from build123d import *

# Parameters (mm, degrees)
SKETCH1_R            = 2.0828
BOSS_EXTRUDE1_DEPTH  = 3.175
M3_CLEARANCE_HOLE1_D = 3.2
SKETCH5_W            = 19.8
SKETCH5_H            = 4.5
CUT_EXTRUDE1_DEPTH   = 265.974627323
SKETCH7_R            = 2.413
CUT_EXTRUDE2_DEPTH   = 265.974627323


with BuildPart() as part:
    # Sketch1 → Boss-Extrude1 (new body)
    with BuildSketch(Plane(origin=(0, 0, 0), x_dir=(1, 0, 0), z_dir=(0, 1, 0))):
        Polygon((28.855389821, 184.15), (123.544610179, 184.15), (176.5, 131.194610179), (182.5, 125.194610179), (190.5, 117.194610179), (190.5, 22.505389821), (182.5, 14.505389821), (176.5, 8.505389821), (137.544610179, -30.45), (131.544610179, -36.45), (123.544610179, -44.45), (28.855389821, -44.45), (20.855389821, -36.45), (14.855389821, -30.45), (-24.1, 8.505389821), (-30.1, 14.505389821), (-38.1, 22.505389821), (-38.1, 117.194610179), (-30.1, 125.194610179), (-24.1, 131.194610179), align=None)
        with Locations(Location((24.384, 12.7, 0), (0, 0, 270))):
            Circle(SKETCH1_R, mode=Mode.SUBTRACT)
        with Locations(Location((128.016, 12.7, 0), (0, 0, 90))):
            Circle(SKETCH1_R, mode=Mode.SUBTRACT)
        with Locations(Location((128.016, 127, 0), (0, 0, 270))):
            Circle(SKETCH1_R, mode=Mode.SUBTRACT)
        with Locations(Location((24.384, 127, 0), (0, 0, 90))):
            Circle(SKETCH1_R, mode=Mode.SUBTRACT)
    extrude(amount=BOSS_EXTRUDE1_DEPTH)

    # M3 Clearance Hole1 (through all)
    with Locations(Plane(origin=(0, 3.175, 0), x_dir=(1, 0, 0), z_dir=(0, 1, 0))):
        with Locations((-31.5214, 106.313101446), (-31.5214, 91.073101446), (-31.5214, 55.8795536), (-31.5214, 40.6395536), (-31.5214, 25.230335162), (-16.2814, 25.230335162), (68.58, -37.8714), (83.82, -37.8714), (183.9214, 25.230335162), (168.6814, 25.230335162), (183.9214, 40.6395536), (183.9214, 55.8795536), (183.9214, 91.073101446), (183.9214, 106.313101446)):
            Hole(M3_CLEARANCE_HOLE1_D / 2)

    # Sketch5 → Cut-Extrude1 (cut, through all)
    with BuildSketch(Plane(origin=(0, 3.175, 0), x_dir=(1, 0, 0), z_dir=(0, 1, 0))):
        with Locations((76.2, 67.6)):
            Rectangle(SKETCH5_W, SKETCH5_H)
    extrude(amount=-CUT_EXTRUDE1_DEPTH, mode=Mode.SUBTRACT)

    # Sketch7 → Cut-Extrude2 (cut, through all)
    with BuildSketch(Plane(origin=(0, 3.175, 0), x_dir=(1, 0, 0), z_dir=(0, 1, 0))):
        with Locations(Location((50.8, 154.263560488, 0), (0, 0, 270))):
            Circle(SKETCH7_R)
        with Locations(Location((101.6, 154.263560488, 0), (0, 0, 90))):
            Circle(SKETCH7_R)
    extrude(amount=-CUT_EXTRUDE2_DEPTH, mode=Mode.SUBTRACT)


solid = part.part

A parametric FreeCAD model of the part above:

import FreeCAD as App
import Part
import Sketcher

doc = App.newDocument("Part")
body = doc.addObject("PartDesign::Body", "Body")

sketch1 = body.newObject("Sketcher::SketchObject", "Sketch")
sketch1.AttachmentSupport = (doc.getObject("XZ_Plane"), [""])
sketch1.MapMode = "FlatFace"
sketch1.addGeometry([
    Part.LineSegment(App.Vector(123.54461, -184.15, 0), App.Vector(28.85539, -184.15, 0)),
    Part.LineSegment(App.Vector(28.85539, -184.15, 0), App.Vector(-38.1, -117.19461, 0)),
    Part.LineSegment(App.Vector(-38.1, -117.19461, 0), App.Vector(-38.1, -22.50539, 0)),
    Part.LineSegment(App.Vector(-38.1, -22.50539, 0), App.Vector(28.85539, 44.45, 0)),
    Part.LineSegment(App.Vector(28.85539, 44.45, 0), App.Vector(123.54461, 44.45, 0)),
    Part.LineSegment(App.Vector(123.54461, 44.45, 0), App.Vector(190.5, -22.50539, 0)),
    Part.LineSegment(App.Vector(190.5, -22.50539, 0), App.Vector(190.5, -117.19461, 0)),
    Part.LineSegment(App.Vector(190.5, -117.19461, 0), App.Vector(123.54461, -184.15, 0)),
    Part.Circle(App.Vector(128.016, -12.7, 0), App.Vector(0, 0, 1), 2.0828),
    Part.Circle(App.Vector(24.384, -12.7, 0), App.Vector(0, 0, 1), 2.0828),
    Part.Circle(App.Vector(128.016, -127, 0), App.Vector(0, 0, 1), 2.0828),
    Part.Circle(App.Vector(24.384, -127, 0), App.Vector(0, 0, 1), 2.0828),
], False)
sketch1.addConstraint([
    Sketcher.Constraint("Coincident", 0, 2, 1, 1),
    Sketcher.Constraint("Coincident", 1, 2, 2, 1),
    Sketcher.Constraint("Coincident", 2, 2, 3, 1),
    Sketcher.Constraint("Coincident", 3, 2, 4, 1),
    Sketcher.Constraint("Coincident", 4, 2, 5, 1),
    Sketcher.Constraint("Coincident", 5, 2, 6, 1),
    Sketcher.Constraint("Coincident", 6, 2, 7, 1),
    Sketcher.Constraint("Coincident", 7, 2, 0, 1),
    Sketcher.Constraint("Horizontal", 0),
    Sketcher.Constraint("Vertical", 2),
    Sketcher.Constraint("Horizontal", 4),
    Sketcher.Constraint("Vertical", 6),
    Sketcher.Constraint("Equal", 8, 9),
    Sketcher.Constraint("Equal", 9, 10),
    Sketcher.Constraint("Equal", 10, 11),
    Sketcher.Constraint("Perpendicular", 1, 3),
    Sketcher.Constraint("Perpendicular", 3, 5),
    Sketcher.Constraint("Perpendicular", 5, 7),
    Sketcher.Constraint("Horizontal", 8, 3, 9, 3),
    Sketcher.Constraint("Horizontal", 10, 3, 11, 3),
    Sketcher.Constraint("Horizontal", 2, 2, 5, 2),
    Sketcher.Constraint("Horizontal", 1, 2, 6, 2),
    Sketcher.Constraint("Vertical", 8, 3, 10, 3),
    Sketcher.Constraint("Vertical", 9, 3, 11, 3),
    Sketcher.Constraint("Vertical", 0, 2, 3, 2),
    Sketcher.Constraint("Vertical", 4, 2, 7, 2),
    Sketcher.Constraint("Equal", 4, 2),
    Sketcher.Constraint("DistanceY", 10, 3, -1, 1, 127.0),
    Sketcher.Constraint("Diameter", 8, 4.1656),
    Sketcher.Constraint("DistanceY", 8, 3, -1, 1, 12.7),
    Sketcher.Constraint("DistanceX", 1, 2, -1, 1, 38.1),
    Sketcher.Constraint("DistanceX", -1, 1, 5, 2, 190.5),
    Sketcher.Constraint("DistanceY", 0, 2, -1, 1, 184.15),
    Sketcher.Constraint("DistanceX", -1, 1, 8, 3, 128.016),
    Sketcher.Constraint("DistanceX", -1, 1, 9, 3, 24.384),
    Sketcher.Constraint("DistanceX", 0, 2, 0, 1, 94.68922),
])
pad1 = body.newObject("PartDesign::Pad", "Pad")
pad1.Profile = sketch1
pad1.Length = 3.175
pad1.Reversed = True

sketch2 = body.newObject("Sketcher::SketchObject", "Sketch001")
sketch2.AttachmentSupport = (doc.getObject("XZ_Plane"), [""])
sketch2.MapMode = "FlatFace"
sketch2.AttachmentOffset = App.Placement(App.Vector(0, 0, -3.175), App.Rotation())
sketch2.addGeometry([
    Part.Circle(App.Vector(-31.5214, -106.313101, 0), App.Vector(0, 0, 1), 1.6),
    Part.Circle(App.Vector(-31.5214, -91.073101, 0), App.Vector(0, 0, 1), 1.6),
    Part.Circle(App.Vector(-31.5214, -55.879554, 0), App.Vector(0, 0, 1), 1.6),
    Part.Circle(App.Vector(-31.5214, -40.639554, 0), App.Vector(0, 0, 1), 1.6),
    Part.Circle(App.Vector(-31.5214, -25.230335, 0), App.Vector(0, 0, 1), 1.6),
    Part.Circle(App.Vector(-16.2814, -25.230335, 0), App.Vector(0, 0, 1), 1.6),
    Part.Circle(App.Vector(68.58, 37.8714, 0), App.Vector(0, 0, 1), 1.6),
    Part.Circle(App.Vector(83.82, 37.8714, 0), App.Vector(0, 0, 1), 1.6),
    Part.Circle(App.Vector(183.9214, -25.230335, 0), App.Vector(0, 0, 1), 1.6),
    Part.Circle(App.Vector(168.6814, -25.230335, 0), App.Vector(0, 0, 1), 1.6),
    Part.Circle(App.Vector(183.9214, -40.639554, 0), App.Vector(0, 0, 1), 1.6),
    Part.Circle(App.Vector(183.9214, -55.879554, 0), App.Vector(0, 0, 1), 1.6),
    Part.Circle(App.Vector(183.9214, -91.073101, 0), App.Vector(0, 0, 1), 1.6),
    Part.Circle(App.Vector(183.9214, -106.313101, 0), App.Vector(0, 0, 1), 1.6),
], False)
sketch2.addConstraint([
    Sketcher.Constraint("Equal", 0, 1),
    Sketcher.Constraint("Equal", 1, 2),
    Sketcher.Constraint("Equal", 2, 3),
    Sketcher.Constraint("Equal", 3, 4),
    Sketcher.Constraint("Equal", 4, 5),
    Sketcher.Constraint("Equal", 5, 6),
    Sketcher.Constraint("Equal", 6, 7),
    Sketcher.Constraint("Equal", 7, 8),
    Sketcher.Constraint("Equal", 8, 9),
    Sketcher.Constraint("Equal", 9, 10),
    Sketcher.Constraint("Equal", 10, 11),
    Sketcher.Constraint("Equal", 11, 12),
    Sketcher.Constraint("Equal", 12, 13),
    Sketcher.Constraint("Horizontal", 4, 3, 5, 3),
    Sketcher.Constraint("Horizontal", 6, 3, 7, 3),
    Sketcher.Constraint("Horizontal", 5, 3, 8, 3),
    Sketcher.Constraint("Horizontal", 8, 3, 9, 3),
    Sketcher.Constraint("Horizontal", 3, 3, 10, 3),
    Sketcher.Constraint("Horizontal", 2, 3, 11, 3),
    Sketcher.Constraint("Horizontal", 1, 3, 12, 3),
    Sketcher.Constraint("Horizontal", 0, 3, 13, 3),
    Sketcher.Constraint("Vertical", 0, 3, 1, 3),
    Sketcher.Constraint("Vertical", 1, 3, 2, 3),
    Sketcher.Constraint("Vertical", 2, 3, 3, 3),
    Sketcher.Constraint("Vertical", 3, 3, 4, 3),
    Sketcher.Constraint("Vertical", 8, 3, 10, 3),
    Sketcher.Constraint("Vertical", 10, 3, 11, 3),
    Sketcher.Constraint("Vertical", 11, 3, 12, 3),
    Sketcher.Constraint("Vertical", 12, 3, 13, 3),
    Sketcher.Constraint("Diameter", 0, 3.2),
    Sketcher.Constraint("DistanceX", -1, 1, 6, 3, 68.58),
    Sketcher.Constraint("DistanceX", -1, 1, 7, 3, 83.82),
    Sketcher.Constraint("DistanceY", 0, 3, 1, 3, 15.24),
    Sketcher.Constraint("DistanceY", 2, 3, 3, 3, 15.24),
    Sketcher.Constraint("DistanceX", 4, 3, 5, 3, 15.24),
    Sketcher.Constraint("DistanceX", 9, 3, 8, 3, 15.24),
    Sketcher.Constraint("DistanceX", 0, 3, -1, 1, 31.5214),
    Sketcher.Constraint("DistanceY", 0, 3, -1, 1, 106.313101),
    Sketcher.Constraint("DistanceY", -1, 1, 6, 3, 37.8714),
    Sketcher.Constraint("DistanceX", -1, 1, 8, 3, 183.9214),
    Sketcher.Constraint("DistanceY", 3, 3, 4, 3, 15.409218),
    Sketcher.Constraint("DistanceY", 2, 3, -1, 1, 55.879554),
])
doc.recompute()
hole = body.newObject("PartDesign::Hole", "Hole")
hole.Profile = sketch2
hole.ThreadType = "None"
hole.Diameter = 3.2
hole.DepthType = "ThroughAll"
hole.Reversed = True

sketch3 = body.newObject("Sketcher::SketchObject", "Sketch002")
sketch3.AttachmentSupport = (doc.getObject("XZ_Plane"), [""])
sketch3.MapMode = "FlatFace"
sketch3.AttachmentOffset = App.Placement(App.Vector(0, 0, -3.175), App.Rotation())
sketch3.addGeometry([
    Part.LineSegment(App.Vector(66.3, -69.85, 0), App.Vector(66.3, -65.35, 0)),
    Part.LineSegment(App.Vector(66.3, -65.35, 0), App.Vector(86.1, -65.35, 0)),
    Part.LineSegment(App.Vector(86.1, -65.35, 0), App.Vector(86.1, -69.85, 0)),
    Part.LineSegment(App.Vector(86.1, -69.85, 0), App.Vector(66.3, -69.85, 0)),
], False)
sketch3.addConstraint([
    Sketcher.Constraint("Coincident", 0, 2, 1, 1),
    Sketcher.Constraint("Coincident", 1, 2, 2, 1),
    Sketcher.Constraint("Coincident", 2, 2, 3, 1),
    Sketcher.Constraint("Coincident", 3, 2, 0, 1),
    Sketcher.Constraint("Vertical", 0),
    Sketcher.Constraint("Horizontal", 1),
    Sketcher.Constraint("Vertical", 2),
    Sketcher.Constraint("Horizontal", 3),
    Sketcher.Constraint("DistanceX", 1, 1, 1, 2, 19.8),
    Sketcher.Constraint("DistanceY", 0, 1, 0, 2, 4.5),
    Sketcher.Constraint("DistanceX", -1, 1, 0, 2, 66.3),
    Sketcher.Constraint("DistanceY", 0, 2, -1, 1, 65.35),
])
pocket1 = body.newObject("PartDesign::Pocket", "Pocket")
pocket1.Profile = sketch3
pocket1.Type = "ThroughAll"
pocket1.Reversed = True

sketch4 = body.newObject("Sketcher::SketchObject", "Sketch003")
sketch4.AttachmentSupport = (doc.getObject("XZ_Plane"), [""])
sketch4.MapMode = "FlatFace"
sketch4.AttachmentOffset = App.Placement(App.Vector(0, 0, -3.175), App.Rotation())
sketch4.addGeometry([
    Part.Circle(App.Vector(50.8, -154.26356, 0), App.Vector(0, 0, 1), 2.413),
    Part.Circle(App.Vector(101.6, -154.26356, 0), App.Vector(0, 0, 1), 2.413),
], False)
sketch4.addConstraint([
    Sketcher.Constraint("Equal", 0, 1),
    Sketcher.Constraint("Horizontal", 0, 3, 1, 3),
    Sketcher.Constraint("Diameter", 0, 4.826),
    Sketcher.Constraint("DistanceX", -1, 1, 0, 3, 50.8),
    Sketcher.Constraint("DistanceX", -1, 1, 1, 3, 101.6),
    Sketcher.Constraint("DistanceY", 0, 3, -1, 1, 154.26356),
])
pocket2 = body.newObject("PartDesign::Pocket", "Pocket001")
pocket2.Profile = sketch4
pocket2.Type = "ThroughAll"
pocket2.Reversed = True

doc.recompute()
